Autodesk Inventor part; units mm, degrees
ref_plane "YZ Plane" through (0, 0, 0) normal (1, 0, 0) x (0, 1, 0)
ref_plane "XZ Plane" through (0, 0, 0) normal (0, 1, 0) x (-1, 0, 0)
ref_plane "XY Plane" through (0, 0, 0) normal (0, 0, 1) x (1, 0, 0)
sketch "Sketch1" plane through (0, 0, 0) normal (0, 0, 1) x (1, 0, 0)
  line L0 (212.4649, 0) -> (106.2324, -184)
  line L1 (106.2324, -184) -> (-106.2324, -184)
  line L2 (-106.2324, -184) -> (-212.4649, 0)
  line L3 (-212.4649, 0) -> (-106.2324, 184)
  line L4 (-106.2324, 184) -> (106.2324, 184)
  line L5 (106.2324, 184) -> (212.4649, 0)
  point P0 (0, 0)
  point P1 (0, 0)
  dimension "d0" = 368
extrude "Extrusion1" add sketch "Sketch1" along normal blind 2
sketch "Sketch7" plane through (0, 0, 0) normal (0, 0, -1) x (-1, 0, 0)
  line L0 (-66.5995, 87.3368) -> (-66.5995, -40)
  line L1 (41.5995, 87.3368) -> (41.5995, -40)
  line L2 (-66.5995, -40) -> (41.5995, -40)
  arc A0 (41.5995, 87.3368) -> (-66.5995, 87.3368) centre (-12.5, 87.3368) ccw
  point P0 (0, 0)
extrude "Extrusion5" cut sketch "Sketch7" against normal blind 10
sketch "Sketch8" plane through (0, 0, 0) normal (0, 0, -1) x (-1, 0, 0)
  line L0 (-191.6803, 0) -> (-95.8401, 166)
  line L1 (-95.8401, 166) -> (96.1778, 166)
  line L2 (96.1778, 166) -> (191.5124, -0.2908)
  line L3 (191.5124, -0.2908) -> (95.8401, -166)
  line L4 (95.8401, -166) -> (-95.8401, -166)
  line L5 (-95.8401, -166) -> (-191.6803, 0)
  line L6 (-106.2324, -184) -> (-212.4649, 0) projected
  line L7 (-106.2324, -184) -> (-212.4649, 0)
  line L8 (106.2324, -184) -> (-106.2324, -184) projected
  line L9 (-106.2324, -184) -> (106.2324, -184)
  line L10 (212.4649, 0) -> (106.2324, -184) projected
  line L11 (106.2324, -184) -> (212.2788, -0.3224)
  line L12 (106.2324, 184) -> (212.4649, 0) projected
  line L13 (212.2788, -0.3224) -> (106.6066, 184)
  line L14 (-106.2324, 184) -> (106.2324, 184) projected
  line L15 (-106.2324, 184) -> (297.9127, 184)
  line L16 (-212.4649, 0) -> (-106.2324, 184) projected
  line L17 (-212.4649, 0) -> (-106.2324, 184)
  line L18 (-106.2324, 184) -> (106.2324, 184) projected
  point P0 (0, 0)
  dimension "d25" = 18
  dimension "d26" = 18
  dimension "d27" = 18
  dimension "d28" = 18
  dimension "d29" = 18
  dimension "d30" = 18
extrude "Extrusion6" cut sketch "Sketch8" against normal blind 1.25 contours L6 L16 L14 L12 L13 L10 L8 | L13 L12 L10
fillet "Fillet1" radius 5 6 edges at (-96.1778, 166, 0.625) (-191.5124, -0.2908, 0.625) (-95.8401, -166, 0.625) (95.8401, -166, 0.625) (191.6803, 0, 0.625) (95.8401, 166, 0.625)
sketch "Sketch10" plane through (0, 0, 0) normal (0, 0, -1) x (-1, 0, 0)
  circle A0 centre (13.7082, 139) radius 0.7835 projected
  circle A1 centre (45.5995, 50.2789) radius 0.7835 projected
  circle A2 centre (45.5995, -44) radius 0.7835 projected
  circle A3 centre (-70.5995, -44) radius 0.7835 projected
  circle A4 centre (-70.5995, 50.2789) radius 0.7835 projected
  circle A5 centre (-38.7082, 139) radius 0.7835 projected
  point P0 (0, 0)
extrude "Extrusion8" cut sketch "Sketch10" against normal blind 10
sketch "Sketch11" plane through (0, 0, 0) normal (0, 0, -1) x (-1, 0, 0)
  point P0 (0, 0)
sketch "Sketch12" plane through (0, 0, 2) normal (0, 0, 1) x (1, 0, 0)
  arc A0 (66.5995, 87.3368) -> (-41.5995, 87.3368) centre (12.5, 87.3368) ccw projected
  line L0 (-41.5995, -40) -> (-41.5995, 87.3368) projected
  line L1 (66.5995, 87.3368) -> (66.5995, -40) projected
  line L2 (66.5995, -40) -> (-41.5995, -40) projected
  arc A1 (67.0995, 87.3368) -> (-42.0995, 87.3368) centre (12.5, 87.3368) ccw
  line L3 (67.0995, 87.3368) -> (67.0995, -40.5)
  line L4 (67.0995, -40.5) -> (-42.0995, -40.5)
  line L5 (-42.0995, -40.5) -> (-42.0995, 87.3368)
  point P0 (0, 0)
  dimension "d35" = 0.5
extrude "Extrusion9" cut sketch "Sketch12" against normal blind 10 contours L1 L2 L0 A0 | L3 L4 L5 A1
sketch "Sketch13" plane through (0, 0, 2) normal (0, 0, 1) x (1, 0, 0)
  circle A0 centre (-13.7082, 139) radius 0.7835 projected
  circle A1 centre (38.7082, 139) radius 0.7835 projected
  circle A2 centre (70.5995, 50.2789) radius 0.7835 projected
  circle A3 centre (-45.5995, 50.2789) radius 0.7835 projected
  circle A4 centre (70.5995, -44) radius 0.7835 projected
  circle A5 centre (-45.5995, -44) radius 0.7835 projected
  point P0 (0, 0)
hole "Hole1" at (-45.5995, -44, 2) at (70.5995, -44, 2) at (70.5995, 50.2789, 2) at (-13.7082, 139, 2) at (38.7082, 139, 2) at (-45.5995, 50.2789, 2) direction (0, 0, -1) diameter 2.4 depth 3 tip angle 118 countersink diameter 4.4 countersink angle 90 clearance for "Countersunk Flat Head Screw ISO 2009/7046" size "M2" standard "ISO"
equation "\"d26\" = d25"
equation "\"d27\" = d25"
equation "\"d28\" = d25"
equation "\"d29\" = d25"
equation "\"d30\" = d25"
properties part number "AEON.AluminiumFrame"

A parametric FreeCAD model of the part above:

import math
import FreeCAD as App
import Part
import Sketcher
Q = App.Units.Quantity


def edges_at(feature, points):
    """Names of the edges that pass closest to the given points."""
    edges = feature.Shape.Edges
    near = lambda p: min(range(len(edges)), key=lambda i: edges[i].distToShape(Part.Vertex(*p))[0])
    return sorted({f"Edge{near(p) + 1}" for p in points})


def add_polygon(sketch, points):
    """Adds a closed chain of lines whose ends are joined by coincident constraints."""
    first, n = sketch.GeometryCount, len(points)
    for a, b in zip(points, points[1:] + points[:1]):
        sketch.addGeometry(Part.LineSegment(App.Vector(*a, 0), App.Vector(*b, 0)), False)
    for i in range(n):
        sketch.addConstraint(Sketcher.Constraint("Coincident", first + i, 2, first + (i + 1) % n, 1))

doc = App.newDocument("Part")
body = doc.addObject("PartDesign::Body", "Body")

# Sketch on XY plane
sketch1 = body.newObject("Sketcher::SketchObject", "Sketch")
sketch1.AttachmentSupport = (doc.getObject("XY_Plane"), [""])
sketch1.MapMode = "FlatFace"
add_polygon(sketch1, [(106, -184), (212, 0), (106, 184), (-106, 184), (-212, 0), (-106, -184)])  # lines 0-5
sketch1.addConstraint(Sketcher.Constraint("Horizontal", 2))
sketch1.addConstraint(Sketcher.Constraint("Horizontal", 5))
sketch1.addConstraint(Sketcher.Constraint("Symmetric", 0, 2, 3, 2, -1, 1))
sketch1.addConstraint(Sketcher.Constraint("Symmetric", 1, 2, 4, 2, -1, 1))
sketch1.addConstraint(Sketcher.Constraint("PointOnObject", 0, 2, -1))
sketch1.addConstraint(Sketcher.Constraint("Parallel", 0, 3))
sketch1.addConstraint(Sketcher.Constraint("Vertical", 2, 2, 4, 2))
sketch1.addConstraint(Sketcher.Constraint("DistanceY", 4, 2, 2, 2, Q("368 mm")))
sketch1.addConstraint(Sketcher.Constraint("Angle", 0, Q("60 deg")))
sketch1.addConstraint(Sketcher.Constraint("DistanceX", 2, 2, 2, 1, Q("212.4648 mm")))
pad1 = body.newObject("PartDesign::Pad", "Pad")
pad1.Profile = sketch1
pad1.Length = 2

# Sketch on XY plane
sketch2 = body.newObject("Sketcher::SketchObject", "Sketch001")
sketch2.AttachmentSupport = (doc.getObject("XY_Plane"), [""])
sketch2.MapMode = "FlatFace"
sketch2.addGeometry(Part.ArcOfCircle(Part.Circle(App.Vector(12, 87, 0), App.Vector(0, 0, 1), 54), math.radians(0), math.radians(180)), False)
sketch2.addGeometry(Part.LineSegment(App.Vector(67, 87, 0), App.Vector(67, -40, 0)), False)
sketch2.addGeometry(Part.LineSegment(App.Vector(67, -40, 0), App.Vector(-42, -40, 0)), False)
sketch2.addGeometry(Part.LineSegment(App.Vector(-42, -40, 0), App.Vector(-42, 87, 0)), False)
sketch2.addConstraint(Sketcher.Constraint("Tangent", 0, 1, 1, 1))
sketch2.addConstraint(Sketcher.Constraint("Coincident", 1, 2, 2, 1))
sketch2.addConstraint(Sketcher.Constraint("Coincident", 2, 2, 3, 1))
sketch2.addConstraint(Sketcher.Constraint("Tangent", 3, 2, 0, 2))
sketch2.addConstraint(Sketcher.Constraint("Vertical", 1))
sketch2.addConstraint(Sketcher.Constraint("Horizontal", 2))
sketch2.addConstraint(Sketcher.Constraint("Vertical", 3))
sketch2.addConstraint(Sketcher.Constraint("DistanceY", 1, 2, -1, 1, Q("40 mm")))
sketch2.addConstraint(Sketcher.Constraint("DistanceX", -1, 1, 0, 3, Q("12.5 mm")))
sketch2.addConstraint(Sketcher.Constraint("Radius", 0, Q("54.0995 mm")))
sketch2.addConstraint(Sketcher.Constraint("DistanceY", 1, 2, 1, 1, Q("127.3368 mm")))
pocket1 = body.newObject("PartDesign::Pocket", "Pocket")
pocket1.Profile = sketch2
pocket1.Length = 10
pocket1.Reversed = True

# Sketch on XY plane
sketch3 = body.newObject("Sketcher::SketchObject", "Sketch002")
sketch3.AttachmentSupport = (doc.getObject("XY_Plane"), [""])
sketch3.MapMode = "FlatFace"
add_polygon(sketch3, [(212, 0), (106, -184), (-106, -184), (-212, 0), (-106, 184), (106, 184)])  # lines 0-5
add_polygon(sketch3, [(96, -166), (192, 0), (96, 166), (-96, 166), (-192, 0), (-96, -166)])  # lines 6-11
sketch3.addConstraint(Sketcher.Constraint("Horizontal", 1))
sketch3.addConstraint(Sketcher.Constraint("Horizontal", 4))
sketch3.addConstraint(Sketcher.Constraint("Horizontal", 8))
sketch3.addConstraint(Sketcher.Constraint("Horizontal", 11))
sketch3.addConstraint(Sketcher.Constraint("Symmetric", 0, 2, 3, 2, -1, 1))
sketch3.addConstraint(Sketcher.Constraint("Symmetric", 2, 2, 5, 2, -1, 1))
sketch3.addConstraint(Sketcher.Constraint("Symmetric", 7, 2, 10, 2, -1, 1))
sketch3.addConstraint(Sketcher.Constraint("PointOnObject", 2, 2, -1))
sketch3.addConstraint(Sketcher.Constraint("PointOnObject", 6, 2, -1))
sketch3.addConstraint(Sketcher.Constraint("Parallel", 2, 5))
sketch3.addConstraint(Sketcher.Constraint("Parallel", 3, 6))
sketch3.addConstraint(Sketcher.Constraint("Parallel", 5, 7))
sketch3.addConstraint(Sketcher.Constraint("Parallel", 7, 10))
sketch3.addConstraint(Sketcher.Constraint("Vertical", 1, 2, 3, 2))
sketch3.addConstraint(Sketcher.Constraint("Equal", 7, 9))
sketch3.addConstraint(Sketcher.Constraint("DistanceY", 7, 2, 4, 2, Q("18 mm")))
sketch3.addConstraint(Sketcher.Constraint("Angle", 0, Q("-120 deg")))
sketch3.addConstraint(Sketcher.Constraint("DistanceY", 0, 2, -1, 1, Q("184 mm")))
sketch3.addConstraint(Sketcher.Constraint("DistanceX", 8, 2, 8, 1, Q("192.018 mm")))
sketch3.addConstraint(Sketcher.Constraint("DistanceX", -1, 1, 7, 2, Q("95.84 mm")))
sketch3.addConstraint(Sketcher.Constraint("DistanceX", 9, 2, 1, 2, Q("85.28 mm")))
pocket2 = body.newObject("PartDesign::Pocket", "Pocket001")
pocket2.Profile = sketch3
pocket2.Length = 1.25
pocket2.Reversed = True
doc.recompute()

fillet = body.newObject("PartDesign::Fillet", "Fillet")
fillet.Base = (pocket2, edges_at(pocket2, [
    (-96.178, 166, 0.625),
    (-191.512, -0.291, 0.625),
    (-95.84, -166, 0.625),
    (95.84, -166, 0.625),
    (191.68, 0, 0.625),
    (95.84, 166, 0.625),
]))
fillet.Radius = 5

# Sketch on XY plane
sketch4 = body.newObject("Sketcher::SketchObject", "Sketch003")
sketch4.AttachmentSupport = (doc.getObject("XY_Plane"), [""])
sketch4.MapMode = "FlatFace"
sketch4.addGeometry(Part.Circle(App.Vector(-13.7, 139, 0), App.Vector(0, 0, 1), 0.8), False)
sketch4.addGeometry(Part.Circle(App.Vector(-45.6, 50.3, 0), App.Vector(0, 0, 1), 0.8), False)
sketch4.addGeometry(Part.Circle(App.Vector(-45.6, -44, 0), App.Vector(0, 0, 1), 0.8), False)
sketch4.addGeometry(Part.Circle(App.Vector(70.6, -44, 0), App.Vector(0, 0, 1), 0.8), False)
sketch4.addGeometry(Part.Circle(App.Vector(70.6, 50.3, 0), App.Vector(0, 0, 1), 0.8), False)
sketch4.addGeometry(Part.Circle(App.Vector(38.7, 139, 0), App.Vector(0, 0, 1), 0.8), False)
sketch4.addConstraint(Sketcher.Constraint("Equal", 0, 1))
sketch4.addConstraint(Sketcher.Constraint("Equal", 1, 2))
sketch4.addConstraint(Sketcher.Constraint("Equal", 2, 3))
sketch4.addConstraint(Sketcher.Constraint("Equal", 3, 4))
sketch4.addConstraint(Sketcher.Constraint("Equal", 4, 5))
sketch4.addConstraint(Sketcher.Constraint("Horizontal", 2, 3, 3, 3))
sketch4.addConstraint(Sketcher.Constraint("Horizontal", 1, 3, 4, 3))
sketch4.addConstraint(Sketcher.Constraint("Horizontal", 0, 3, 5, 3))
sketch4.addConstraint(Sketcher.Constraint("Vertical", 1, 3, 2, 3))
sketch4.addConstraint(Sketcher.Constraint("Vertical", 3, 3, 4, 3))
sketch4.addConstraint(Sketcher.Constraint("Diameter", 0, Q("1.567 mm")))
sketch4.addConstraint(Sketcher.Constraint("DistanceY", -1, 1, 0, 3, Q("139 mm")))
sketch4.addConstraint(Sketcher.Constraint("DistanceY", 2, 3, -1, 1, Q("44 mm")))
sketch4.addConstraint(Sketcher.Constraint("DistanceY", -1, 1, 1, 3, Q("50.279 mm")))
sketch4.addConstraint(Sketcher.Constraint("DistanceX", 2, 3, 3, 3, Q("116.199 mm")))
sketch4.addConstraint(Sketcher.Constraint("DistanceX", 0, 3, -1, 1, Q("13.7082 mm")))
sketch4.addConstraint(Sketcher.Constraint("DistanceX", 1, 3, -1, 1, Q("45.5995 mm")))
sketch4.addConstraint(Sketcher.Constraint("DistanceX", -1, 1, 5, 3, Q("38.7082 mm")))
pocket3 = body.newObject("PartDesign::Pocket", "Pocket002")
pocket3.Profile = sketch4
pocket3.Length = 10
pocket3.Reversed = True

# Sketch on XY plane
sketch5 = body.newObject("Sketcher::SketchObject", "Sketch004")
sketch5.AttachmentSupport = (doc.getObject("XY_Plane"), [""])
sketch5.MapMode = "FlatFace"
sketch5.AttachmentOffset = App.Placement(App.Vector(0, 0, 2), App.Rotation())
sketch5.addGeometry(Part.LineSegment(App.Vector(67, -40, 0), App.Vector(67, 87, 0)), False)
sketch5.addGeometry(Part.ArcOfCircle(Part.Circle(App.Vector(12, 87, 0), App.Vector(0, 0, 1), 55), math.radians(0), math.radians(180)), False)
sketch5.addGeometry(Part.LineSegment(App.Vector(-42, 87, 0), App.Vector(-42, -40, 0)), False)
sketch5.addGeometry(Part.LineSegment(App.Vector(-42, -40, 0), App.Vector(67, -40, 0)), False)
sketch5.addConstraint(Sketcher.Constraint("Tangent", 0, 2, 1, 1))
sketch5.addConstraint(Sketcher.Constraint("Tangent", 1, 2, 2, 1))
sketch5.addConstraint(Sketcher.Constraint("Coincident", 2, 2, 3, 1))
sketch5.addConstraint(Sketcher.Constraint("Coincident", 3, 2, 0, 1))
sketch5.addConstraint(Sketcher.Constraint("Vertical", 0))
sketch5.addConstraint(Sketcher.Constraint("Vertical", 2))
sketch5.addConstraint(Sketcher.Constraint("Horizontal", 3))
sketch5.addConstraint(Sketcher.Constraint("DistanceX", -1, 1, 1, 3, Q("12.5 mm")))
sketch5.addConstraint(Sketcher.Constraint("DistanceY", 2, 2, -1, 1, Q("40.5 mm")))
sketch5.addConstraint(Sketcher.Constraint("Radius", 1, Q("54.5995 mm")))
sketch5.addConstraint(Sketcher.Constraint("DistanceY", 0, 1, 0, 2, Q("127.8368 mm")))
pocket4 = body.newObject("PartDesign::Pocket", "Pocket003")
pocket4.Profile = sketch5
pocket4.Length = 10

# Sketch on XY plane
sketch6 = body.newObject("Sketcher::SketchObject", "Sketch005")
sketch6.AttachmentSupport = (doc.getObject("XY_Plane"), [""])
sketch6.MapMode = "FlatFace"
sketch6.AttachmentOffset = App.Placement(App.Vector(0, 0, 2), App.Rotation())
sketch6.addGeometry(Part.Circle(App.Vector(-45.6, -44, 0), App.Vector(0, 0, 1), 1.2), False)
sketch6.addGeometry(Part.Circle(App.Vector(70.6, -44, 0), App.Vector(0, 0, 1), 1.2), False)
sketch6.addGeometry(Part.Circle(App.Vector(70.6, 50.3, 0), App.Vector(0, 0, 1), 1.2), False)
sketch6.addGeometry(Part.Circle(App.Vector(-13.7, 139, 0), App.Vector(0, 0, 1), 1.2), False)
sketch6.addGeometry(Part.Circle(App.Vector(38.7, 139, 0), App.Vector(0, 0, 1), 1.2), False)
sketch6.addGeometry(Part.Circle(App.Vector(-45.6, 50.3, 0), App.Vector(0, 0, 1), 1.2), False)
sketch6.addConstraint(Sketcher.Constraint("Equal", 0, 1))
sketch6.addConstraint(Sketcher.Constraint("Equal", 1, 2))
sketch6.addConstraint(Sketcher.Constraint("Equal", 2, 3))
sketch6.addConstraint(Sketcher.Constraint("Equal", 3, 4))
sketch6.addConstraint(Sketcher.Constraint("Equal", 4, 5))
sketch6.addConstraint(Sketcher.Constraint("Horizontal", 0, 3, 1, 3))
sketch6.addConstraint(Sketcher.Constraint("Horizontal", 3, 3, 4, 3))
sketch6.addConstraint(Sketcher.Constraint("Horizontal", 2, 3, 5, 3))
sketch6.addConstraint(Sketcher.Constraint("Vertical", 1, 3, 2, 3))
sketch6.addConstraint(Sketcher.Constraint("Vertical", 0, 3, 5, 3))
sketch6.addConstraint(Sketcher.Constraint("Diameter", 0, Q("2.4 mm")))
sketch6.addConstraint(Sketcher.Constraint("DistanceY", 0, 3, -1, 1, Q("44 mm")))
sketch6.addConstraint(Sketcher.Constraint("DistanceY", -1, 1, 3, 3, Q("139 mm")))
sketch6.addConstraint(Sketcher.Constraint("DistanceY", -1, 1, 2, 3, Q("50.279 mm")))
sketch6.addConstraint(Sketcher.Constraint("DistanceX", 0, 3, 1, 3, Q("116.199 mm")))
sketch6.addConstraint(Sketcher.Constraint("DistanceX", 0, 3, -1, 1, Q("45.5995 mm")))
sketch6.addConstraint(Sketcher.Constraint("DistanceX", 3, 3, -1, 1, Q("13.7082 mm")))
sketch6.addConstraint(Sketcher.Constraint("DistanceX", -1, 1, 4, 3, Q("38.7082 mm")))
doc.recompute()
hole = body.newObject("PartDesign::Hole", "Hole")
hole.Profile = sketch6
hole.ThreadType = "None"
hole.Diameter = 2.4
hole.DepthType = "Dimension"
hole.Depth = 3
hole.DrillPoint = "Angled"
hole.DrillPointAngle = 118
hole.HoleCutType = "Countersink"
hole.HoleCutDiameter = 4.4
hole.HoleCutCountersinkAngle = 90

doc.recompute()
